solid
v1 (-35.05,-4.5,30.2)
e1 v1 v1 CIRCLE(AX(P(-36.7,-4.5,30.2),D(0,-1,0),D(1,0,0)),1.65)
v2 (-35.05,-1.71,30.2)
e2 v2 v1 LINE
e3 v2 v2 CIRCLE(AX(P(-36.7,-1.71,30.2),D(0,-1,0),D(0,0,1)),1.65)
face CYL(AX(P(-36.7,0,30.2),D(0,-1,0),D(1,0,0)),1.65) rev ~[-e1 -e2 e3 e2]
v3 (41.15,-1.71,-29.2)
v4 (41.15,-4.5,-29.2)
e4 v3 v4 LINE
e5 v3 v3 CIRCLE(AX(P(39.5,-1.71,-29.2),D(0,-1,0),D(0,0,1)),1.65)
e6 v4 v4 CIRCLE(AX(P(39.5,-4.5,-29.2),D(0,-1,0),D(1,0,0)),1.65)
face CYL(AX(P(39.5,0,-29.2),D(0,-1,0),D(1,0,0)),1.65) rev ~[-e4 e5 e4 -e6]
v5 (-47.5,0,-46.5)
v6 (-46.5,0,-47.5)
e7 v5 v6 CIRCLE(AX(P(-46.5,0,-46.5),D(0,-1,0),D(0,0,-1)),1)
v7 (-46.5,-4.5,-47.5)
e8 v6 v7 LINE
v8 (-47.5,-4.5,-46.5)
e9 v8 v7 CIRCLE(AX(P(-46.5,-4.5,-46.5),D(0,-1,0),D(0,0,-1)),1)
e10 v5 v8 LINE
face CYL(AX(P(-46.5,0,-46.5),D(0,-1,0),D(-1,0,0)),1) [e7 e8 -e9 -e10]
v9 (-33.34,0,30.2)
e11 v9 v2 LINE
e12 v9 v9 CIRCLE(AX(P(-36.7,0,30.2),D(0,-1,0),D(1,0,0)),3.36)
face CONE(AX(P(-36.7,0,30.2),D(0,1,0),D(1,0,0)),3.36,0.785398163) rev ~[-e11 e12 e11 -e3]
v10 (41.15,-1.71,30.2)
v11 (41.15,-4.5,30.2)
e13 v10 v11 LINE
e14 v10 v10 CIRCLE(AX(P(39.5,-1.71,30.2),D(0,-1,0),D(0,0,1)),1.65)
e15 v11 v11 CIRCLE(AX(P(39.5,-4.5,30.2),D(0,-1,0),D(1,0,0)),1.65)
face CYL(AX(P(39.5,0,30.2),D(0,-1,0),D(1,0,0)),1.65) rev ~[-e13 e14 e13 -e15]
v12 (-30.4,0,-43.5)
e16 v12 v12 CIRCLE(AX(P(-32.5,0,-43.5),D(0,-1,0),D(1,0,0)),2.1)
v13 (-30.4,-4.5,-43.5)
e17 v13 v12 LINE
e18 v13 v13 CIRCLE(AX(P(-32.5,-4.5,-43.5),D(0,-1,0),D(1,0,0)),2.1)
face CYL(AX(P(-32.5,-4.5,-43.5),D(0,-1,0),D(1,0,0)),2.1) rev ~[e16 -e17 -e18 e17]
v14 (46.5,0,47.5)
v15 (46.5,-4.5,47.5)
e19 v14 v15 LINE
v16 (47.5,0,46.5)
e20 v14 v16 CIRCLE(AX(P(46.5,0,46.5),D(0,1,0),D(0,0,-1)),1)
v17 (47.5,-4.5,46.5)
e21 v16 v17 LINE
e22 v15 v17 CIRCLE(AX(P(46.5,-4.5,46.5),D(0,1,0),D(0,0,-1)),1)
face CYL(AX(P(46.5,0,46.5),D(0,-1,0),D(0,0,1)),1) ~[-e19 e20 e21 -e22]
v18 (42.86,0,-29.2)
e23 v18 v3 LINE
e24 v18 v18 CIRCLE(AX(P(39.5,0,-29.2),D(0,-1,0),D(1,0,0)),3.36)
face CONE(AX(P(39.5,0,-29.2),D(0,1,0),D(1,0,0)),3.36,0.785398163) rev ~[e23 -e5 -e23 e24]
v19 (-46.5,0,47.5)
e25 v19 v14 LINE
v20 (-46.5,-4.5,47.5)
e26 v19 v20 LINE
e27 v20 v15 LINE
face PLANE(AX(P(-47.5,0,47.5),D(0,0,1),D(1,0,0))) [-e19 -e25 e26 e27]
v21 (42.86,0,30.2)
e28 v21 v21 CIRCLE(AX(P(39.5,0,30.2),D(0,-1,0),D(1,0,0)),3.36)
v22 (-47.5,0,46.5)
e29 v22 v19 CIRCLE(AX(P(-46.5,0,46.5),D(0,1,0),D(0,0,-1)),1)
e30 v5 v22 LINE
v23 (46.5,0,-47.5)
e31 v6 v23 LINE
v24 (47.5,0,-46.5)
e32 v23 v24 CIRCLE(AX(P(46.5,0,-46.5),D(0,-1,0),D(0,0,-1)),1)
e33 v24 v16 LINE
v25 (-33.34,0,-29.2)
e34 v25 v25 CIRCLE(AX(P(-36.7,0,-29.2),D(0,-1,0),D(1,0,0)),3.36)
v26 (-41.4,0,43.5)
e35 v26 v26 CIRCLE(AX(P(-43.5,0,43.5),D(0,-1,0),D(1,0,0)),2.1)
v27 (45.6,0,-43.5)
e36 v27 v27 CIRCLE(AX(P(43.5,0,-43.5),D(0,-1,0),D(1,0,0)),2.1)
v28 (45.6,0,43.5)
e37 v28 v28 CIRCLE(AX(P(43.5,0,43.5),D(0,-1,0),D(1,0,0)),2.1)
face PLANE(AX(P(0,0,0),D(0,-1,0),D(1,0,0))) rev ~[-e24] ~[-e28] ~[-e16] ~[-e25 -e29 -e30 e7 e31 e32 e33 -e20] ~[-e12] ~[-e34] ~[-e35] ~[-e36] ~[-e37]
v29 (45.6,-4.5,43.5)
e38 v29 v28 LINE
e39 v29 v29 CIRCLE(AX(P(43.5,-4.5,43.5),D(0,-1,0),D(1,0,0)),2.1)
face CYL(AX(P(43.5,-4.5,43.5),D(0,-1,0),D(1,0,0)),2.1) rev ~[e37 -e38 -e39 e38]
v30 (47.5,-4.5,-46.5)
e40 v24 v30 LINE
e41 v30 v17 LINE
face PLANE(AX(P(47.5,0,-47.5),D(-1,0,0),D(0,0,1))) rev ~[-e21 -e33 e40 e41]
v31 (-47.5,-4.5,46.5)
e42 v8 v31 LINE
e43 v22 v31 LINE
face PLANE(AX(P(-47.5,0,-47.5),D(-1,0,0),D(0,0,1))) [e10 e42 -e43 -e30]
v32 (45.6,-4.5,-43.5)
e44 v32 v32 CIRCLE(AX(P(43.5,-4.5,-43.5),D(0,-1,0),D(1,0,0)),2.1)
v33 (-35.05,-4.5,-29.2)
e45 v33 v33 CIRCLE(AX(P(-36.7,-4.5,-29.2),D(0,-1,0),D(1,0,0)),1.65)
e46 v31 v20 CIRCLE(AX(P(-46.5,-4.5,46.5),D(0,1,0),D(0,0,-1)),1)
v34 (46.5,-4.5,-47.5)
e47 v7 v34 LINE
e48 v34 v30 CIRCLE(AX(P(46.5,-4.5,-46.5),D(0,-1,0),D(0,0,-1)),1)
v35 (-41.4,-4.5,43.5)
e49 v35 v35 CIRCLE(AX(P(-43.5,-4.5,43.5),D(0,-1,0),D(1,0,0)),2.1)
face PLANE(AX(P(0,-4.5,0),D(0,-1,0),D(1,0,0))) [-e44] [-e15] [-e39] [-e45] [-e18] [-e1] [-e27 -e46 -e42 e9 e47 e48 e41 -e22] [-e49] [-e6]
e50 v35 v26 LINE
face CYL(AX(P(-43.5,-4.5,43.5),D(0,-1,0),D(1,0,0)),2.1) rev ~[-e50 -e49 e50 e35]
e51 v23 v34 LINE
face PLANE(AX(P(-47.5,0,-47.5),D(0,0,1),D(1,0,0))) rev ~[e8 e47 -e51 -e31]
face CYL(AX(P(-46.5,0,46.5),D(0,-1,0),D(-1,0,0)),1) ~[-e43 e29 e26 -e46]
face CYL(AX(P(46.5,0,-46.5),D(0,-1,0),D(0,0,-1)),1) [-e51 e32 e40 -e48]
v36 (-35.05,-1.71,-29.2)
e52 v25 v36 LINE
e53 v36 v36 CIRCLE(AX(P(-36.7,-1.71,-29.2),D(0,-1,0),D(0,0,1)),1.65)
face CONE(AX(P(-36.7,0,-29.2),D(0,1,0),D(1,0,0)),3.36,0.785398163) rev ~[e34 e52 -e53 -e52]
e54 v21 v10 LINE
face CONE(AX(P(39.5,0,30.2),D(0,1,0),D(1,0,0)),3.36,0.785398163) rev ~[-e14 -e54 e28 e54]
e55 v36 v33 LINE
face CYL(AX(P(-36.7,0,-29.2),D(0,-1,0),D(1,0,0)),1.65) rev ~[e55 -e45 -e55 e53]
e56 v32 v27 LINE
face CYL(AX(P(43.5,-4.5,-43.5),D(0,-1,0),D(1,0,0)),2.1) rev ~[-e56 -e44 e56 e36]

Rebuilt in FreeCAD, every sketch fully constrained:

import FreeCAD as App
import Part
import Sketcher


def edges_at(feature, points):
    """Names of the edges that pass closest to the given points."""
    edges = feature.Shape.Edges
    near = lambda p: min(range(len(edges)), key=lambda i: edges[i].distToShape(Part.Vertex(*p))[0])
    return sorted({f"Edge{near(p) + 1}" for p in points})

doc = App.newDocument("Part")
body = doc.addObject("PartDesign::Body", "Body")

sketch1 = body.newObject("Sketcher::SketchObject", "Sketch")
sketch1.AttachmentSupport = (doc.getObject("XZ_Plane"), [""])
sketch1.MapMode = "FlatFace"
sketch1.addGeometry(Part.LineSegment(App.Vector(-48, 48, 0), App.Vector(-48, -48, 0)), False)
sketch1.addGeometry(Part.LineSegment(App.Vector(-48, -48, 0), App.Vector(48, -48, 0)), False)
sketch1.addGeometry(Part.LineSegment(App.Vector(48, -48, 0), App.Vector(48, 48, 0)), False)
sketch1.addGeometry(Part.LineSegment(App.Vector(48, 48, 0), App.Vector(-48, 48, 0)), False)
sketch1.addConstraint(Sketcher.Constraint("Coincident", 0, 2, 1, 1))
sketch1.addConstraint(Sketcher.Constraint("Coincident", 1, 2, 2, 1))
sketch1.addConstraint(Sketcher.Constraint("Coincident", 2, 2, 3, 1))
sketch1.addConstraint(Sketcher.Constraint("Coincident", 3, 2, 0, 1))
sketch1.addConstraint(Sketcher.Constraint("Vertical", 0))
sketch1.addConstraint(Sketcher.Constraint("Horizontal", 1))
sketch1.addConstraint(Sketcher.Constraint("Vertical", 2))
sketch1.addConstraint(Sketcher.Constraint("Horizontal", 3))
sketch1.addConstraint(Sketcher.Constraint("Symmetric", 0, 2, 2, 2, -1, 1))
sketch1.addConstraint(Sketcher.Constraint("Equal", 3, 0))
sketch1.addConstraint(Sketcher.Constraint("DistanceX", 1, 1, 1, 2, 95.0))
pad1 = body.newObject("PartDesign::Pad", "Pad")
pad1.Profile = sketch1
pad1.Length = 4.5

sketch2 = body.newObject("Sketcher::SketchObject", "Sketch001")
sketch2.AttachmentSupport = (doc.getObject("XZ_Plane"), [""])
sketch2.MapMode = "FlatFace"
sketch2.AttachmentOffset = App.Placement(App.Vector(0, 0, 4.5), App.Rotation())
sketch2.addGeometry(Part.Circle(App.Vector(43.5, 43.5, 0), App.Vector(0, 0, 1), 2.1), False)
sketch2.addGeometry(Part.Circle(App.Vector(43.5, -43.5, 0), App.Vector(0, 0, 1), 2.1), False)
sketch2.addGeometry(Part.Circle(App.Vector(-32.5, -43.5, 0), App.Vector(0, 0, 1), 2.1), False)
sketch2.addGeometry(Part.Circle(App.Vector(-43.5, 43.5, 0), App.Vector(0, 0, 1), 2.1), False)
sketch2.addConstraint(Sketcher.Constraint("Equal", 0, 1))
sketch2.addConstraint(Sketcher.Constraint("Equal", 1, 2))
sketch2.addConstraint(Sketcher.Constraint("Equal", 2, 3))
sketch2.addConstraint(Sketcher.Constraint("Symmetric", 1, 3, 3, 3, -1, 1))
sketch2.addConstraint(Sketcher.Constraint("Symmetric", 0, 3, 3, 3, -2))
sketch2.addConstraint(Sketcher.Constraint("Horizontal", 1, 3, 2, 3))
sketch2.addConstraint(Sketcher.Constraint("Diameter", 0, 4.2))
sketch2.addConstraint(Sketcher.Constraint("DistanceY", 1, 3, 0, 3, 87.0))
sketch2.addConstraint(Sketcher.Constraint("DistanceX", 2, 3, 1, 3, 76.0))
sketch2.addConstraint(Sketcher.Constraint("DistanceX", 3, 3, 0, 3, 87.0))
pocket1 = body.newObject("PartDesign::Pocket", "Pocket")
pocket1.Profile = sketch2
pocket1.Type = "ThroughAll"
doc.recompute()

fillet = body.newObject("PartDesign::Fillet", "Fillet")
fillet.Base = (pocket1, edges_at(pocket1, [
    (-47.5, -2.25, 47.5),
    (47.5, -2.25, 47.5),
    (47.5, -2.25, -47.5),
    (-47.5, -2.25, -47.5),
]))
fillet.Radius = 1

sketch3 = body.newObject("Sketcher::SketchObject", "Sketch002")
sketch3.AttachmentSupport = (doc.getObject("XZ_Plane"), [""])
sketch3.MapMode = "FlatFace"
sketch3.addGeometry(Part.Circle(App.Vector(39.5, 30.2, 0), App.Vector(0, 0, 1), 1.6), False)
sketch3.addGeometry(Part.Circle(App.Vector(-36.7, 30.2, 0), App.Vector(0, 0, 1), 1.6), False)
sketch3.addGeometry(Part.Circle(App.Vector(-36.7, -29.2, 0), App.Vector(0, 0, 1), 1.6), False)
sketch3.addGeometry(Part.Circle(App.Vector(39.5, -29.2, 0), App.Vector(0, 0, 1), 1.6), False)
sketch3.addConstraint(Sketcher.Constraint("Equal", 0, 1))
sketch3.addConstraint(Sketcher.Constraint("Equal", 1, 2))
sketch3.addConstraint(Sketcher.Constraint("Equal", 2, 3))
sketch3.addConstraint(Sketcher.Constraint("Horizontal", 0, 3, 1, 3))
sketch3.addConstraint(Sketcher.Constraint("Horizontal", 2, 3, 3, 3))
sketch3.addConstraint(Sketcher.Constraint("Vertical", 1, 3, 2, 3))
sketch3.addConstraint(Sketcher.Constraint("Vertical", 0, 3, 3, 3))
sketch3.addConstraint(Sketcher.Constraint("Diameter", 0, 3.3))
sketch3.addConstraint(Sketcher.Constraint("DistanceX", -1, 1, 0, 3, 39.5))
sketch3.addConstraint(Sketcher.Constraint("DistanceY", -1, 1, 0, 3, 30.2))
sketch3.addConstraint(Sketcher.Constraint("DistanceX", 1, 3, -1, 1, 36.7))
sketch3.addConstraint(Sketcher.Constraint("DistanceY", 2, 3, -1, 1, 29.2))
doc.recompute()
hole = body.newObject("PartDesign::Hole", "Hole")
hole.Profile = sketch3
hole.ThreadType = "None"
hole.Diameter = 3.3
hole.DepthType = "ThroughAll"
hole.HoleCutType = "Countersink"
hole.HoleCutDiameter = 6.72
hole.HoleCutCountersinkAngle = 90
hole.Reversed = True

doc.recompute()
